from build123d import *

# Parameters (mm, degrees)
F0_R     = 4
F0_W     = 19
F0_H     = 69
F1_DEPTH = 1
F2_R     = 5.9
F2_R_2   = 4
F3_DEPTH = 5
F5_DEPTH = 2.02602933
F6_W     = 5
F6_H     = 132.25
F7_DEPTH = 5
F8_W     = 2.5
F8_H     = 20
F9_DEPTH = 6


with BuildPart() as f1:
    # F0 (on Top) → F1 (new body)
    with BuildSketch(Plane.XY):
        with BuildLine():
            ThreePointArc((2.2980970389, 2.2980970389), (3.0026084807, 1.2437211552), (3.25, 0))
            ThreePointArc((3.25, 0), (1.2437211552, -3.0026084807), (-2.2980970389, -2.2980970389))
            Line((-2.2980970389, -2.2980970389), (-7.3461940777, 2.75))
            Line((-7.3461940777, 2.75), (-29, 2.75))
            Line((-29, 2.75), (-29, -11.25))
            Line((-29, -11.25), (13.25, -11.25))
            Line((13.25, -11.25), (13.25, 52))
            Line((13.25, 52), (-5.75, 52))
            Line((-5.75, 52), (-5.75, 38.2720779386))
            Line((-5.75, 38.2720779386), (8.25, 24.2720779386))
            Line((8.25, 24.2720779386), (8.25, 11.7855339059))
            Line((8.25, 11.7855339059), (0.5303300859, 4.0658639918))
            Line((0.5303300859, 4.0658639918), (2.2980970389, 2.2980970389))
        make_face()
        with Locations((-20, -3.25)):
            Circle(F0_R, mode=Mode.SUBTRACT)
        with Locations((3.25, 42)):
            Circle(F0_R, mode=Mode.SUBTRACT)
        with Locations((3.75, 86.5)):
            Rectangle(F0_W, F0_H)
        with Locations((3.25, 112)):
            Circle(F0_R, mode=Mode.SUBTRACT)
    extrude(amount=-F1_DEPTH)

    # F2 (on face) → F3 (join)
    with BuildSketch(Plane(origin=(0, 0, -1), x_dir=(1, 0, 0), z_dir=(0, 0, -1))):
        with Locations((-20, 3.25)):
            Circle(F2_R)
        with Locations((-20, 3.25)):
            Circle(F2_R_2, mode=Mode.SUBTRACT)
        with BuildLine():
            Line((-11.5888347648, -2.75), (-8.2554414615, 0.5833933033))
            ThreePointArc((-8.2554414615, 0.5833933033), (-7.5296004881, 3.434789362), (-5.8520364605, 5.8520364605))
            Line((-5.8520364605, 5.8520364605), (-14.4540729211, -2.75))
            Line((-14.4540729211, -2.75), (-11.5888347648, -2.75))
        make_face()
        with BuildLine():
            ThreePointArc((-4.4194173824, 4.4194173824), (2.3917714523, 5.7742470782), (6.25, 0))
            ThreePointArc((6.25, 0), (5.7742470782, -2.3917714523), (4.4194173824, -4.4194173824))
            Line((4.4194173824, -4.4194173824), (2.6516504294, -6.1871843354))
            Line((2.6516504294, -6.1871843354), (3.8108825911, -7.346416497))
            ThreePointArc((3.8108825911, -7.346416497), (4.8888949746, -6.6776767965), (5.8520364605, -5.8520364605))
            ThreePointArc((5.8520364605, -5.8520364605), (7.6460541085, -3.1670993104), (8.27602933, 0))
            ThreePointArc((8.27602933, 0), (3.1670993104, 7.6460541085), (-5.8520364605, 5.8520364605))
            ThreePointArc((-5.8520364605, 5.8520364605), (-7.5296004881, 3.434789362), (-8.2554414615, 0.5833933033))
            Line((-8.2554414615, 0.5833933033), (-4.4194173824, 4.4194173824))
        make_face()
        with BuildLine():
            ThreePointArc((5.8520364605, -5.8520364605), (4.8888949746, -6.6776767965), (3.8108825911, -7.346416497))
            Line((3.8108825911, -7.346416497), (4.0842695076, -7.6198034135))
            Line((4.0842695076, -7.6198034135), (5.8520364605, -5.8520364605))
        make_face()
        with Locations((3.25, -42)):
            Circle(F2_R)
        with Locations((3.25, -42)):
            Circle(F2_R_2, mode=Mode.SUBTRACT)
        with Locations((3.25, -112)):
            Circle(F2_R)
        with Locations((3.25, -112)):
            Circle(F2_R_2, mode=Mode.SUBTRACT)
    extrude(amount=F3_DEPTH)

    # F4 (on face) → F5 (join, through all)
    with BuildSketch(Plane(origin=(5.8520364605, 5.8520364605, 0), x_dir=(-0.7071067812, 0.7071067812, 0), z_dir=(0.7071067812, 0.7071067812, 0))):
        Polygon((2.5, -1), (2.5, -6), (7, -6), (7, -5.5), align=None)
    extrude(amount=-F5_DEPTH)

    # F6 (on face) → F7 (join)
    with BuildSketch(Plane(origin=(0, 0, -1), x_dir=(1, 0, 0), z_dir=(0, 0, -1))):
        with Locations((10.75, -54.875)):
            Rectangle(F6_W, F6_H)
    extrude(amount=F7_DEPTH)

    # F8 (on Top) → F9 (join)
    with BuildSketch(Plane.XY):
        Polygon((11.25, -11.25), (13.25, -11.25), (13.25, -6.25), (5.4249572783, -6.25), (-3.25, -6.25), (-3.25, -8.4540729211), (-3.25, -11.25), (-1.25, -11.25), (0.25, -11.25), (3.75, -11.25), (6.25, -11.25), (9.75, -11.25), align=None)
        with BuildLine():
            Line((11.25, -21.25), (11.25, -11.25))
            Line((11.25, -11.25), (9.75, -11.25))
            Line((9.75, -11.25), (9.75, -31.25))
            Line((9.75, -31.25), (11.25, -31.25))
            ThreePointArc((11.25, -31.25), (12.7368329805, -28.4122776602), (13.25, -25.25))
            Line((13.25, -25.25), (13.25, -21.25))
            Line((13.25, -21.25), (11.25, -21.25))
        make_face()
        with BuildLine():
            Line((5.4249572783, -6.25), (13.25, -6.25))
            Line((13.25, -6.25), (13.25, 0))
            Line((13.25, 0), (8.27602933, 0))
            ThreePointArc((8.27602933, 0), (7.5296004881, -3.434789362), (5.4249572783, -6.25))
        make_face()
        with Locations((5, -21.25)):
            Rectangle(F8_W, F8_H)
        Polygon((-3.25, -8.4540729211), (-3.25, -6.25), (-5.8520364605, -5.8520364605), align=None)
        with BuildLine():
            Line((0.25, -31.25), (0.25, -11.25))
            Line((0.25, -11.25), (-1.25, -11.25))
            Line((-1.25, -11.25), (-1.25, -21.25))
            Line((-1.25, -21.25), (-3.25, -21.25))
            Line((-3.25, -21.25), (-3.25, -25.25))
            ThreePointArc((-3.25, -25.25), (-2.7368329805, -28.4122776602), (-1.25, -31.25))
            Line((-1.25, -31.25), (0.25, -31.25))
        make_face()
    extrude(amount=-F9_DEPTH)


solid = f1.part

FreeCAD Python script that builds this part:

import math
import FreeCAD as App
import Part
import Sketcher
Q = App.Units.Quantity

doc = App.newDocument("Part")
body = doc.addObject("PartDesign::Body", "Body")

# Sketch on XY plane
sketch1 = doc.addObject("Sketcher::SketchObject", "Sketch")
body.addObject(sketch1)
sketch1.AttachmentSupport = (doc.XY_Plane, [""])
sketch1.MapMode = "FlatFace"
sketch1.addGeometry([
    Part.ArcOfCircle(Part.Circle(App.Vector(0, 0, 0), App.Vector(0, 0, 1), 3.25), math.radians(0), math.radians(45)),  # 0
    Part.ArcOfCircle(Part.Circle(App.Vector(0, 0, 0), App.Vector(0, 0, 1), 3.25), math.radians(-135), math.radians(0)),  # 1
    Part.LineSegment(App.Vector(-2.298097, -2.298097, 0), App.Vector(-7.346194, 2.75, 0)),  # 2
    Part.LineSegment(App.Vector(-7.346194, 2.75, 0), App.Vector(-29, 2.75, 0)),  # 3
    Part.LineSegment(App.Vector(-29, 2.75, 0), App.Vector(-29, -11.25, 0)),  # 4
    Part.LineSegment(App.Vector(-29, -11.25, 0), App.Vector(13.25, -11.25, 0)),  # 5
    Part.LineSegment(App.Vector(13.25, -11.25, 0), App.Vector(13.25, 121, 0)),  # 6
    Part.LineSegment(App.Vector(13.25, 121, 0), App.Vector(-5.75, 121, 0)),  # 7
    Part.LineSegment(App.Vector(-5.75, 121, 0), App.Vector(-5.75, 38.272078, 0)),  # 8
    Part.LineSegment(App.Vector(-5.75, 38.272078, 0), App.Vector(8.25, 24.272078, 0)),  # 9
    Part.LineSegment(App.Vector(8.25, 24.272078, 0), App.Vector(8.25, 11.785534, 0)),  # 10
    Part.LineSegment(App.Vector(8.25, 11.785534, 0), App.Vector(0.53033, 4.065864, 0)),  # 11
    Part.LineSegment(App.Vector(0.53033, 4.065864, 0), App.Vector(2.298097, 2.298097, 0)),  # 12
    Part.Circle(App.Vector(-20, -3.25, 0), App.Vector(0, 0, 1), 4),  # 13
    Part.Circle(App.Vector(3.25, 42, 0), App.Vector(0, 0, 1), 4),  # 14
    Part.Circle(App.Vector(3.25, 112, 0), App.Vector(0, 0, 1), 4),  # 15
], False)
sketch1.addConstraint([
    Sketcher.Constraint("Tangent", 0, 1, 1, 2),
    Sketcher.Constraint("Tangent", 1, 1, 2, 1),
    Sketcher.Constraint("Coincident", 2, 2, 3, 1),
    Sketcher.Constraint("Coincident", 3, 2, 4, 1),
    Sketcher.Constraint("Coincident", 4, 2, 5, 1),
    Sketcher.Constraint("Coincident", 5, 2, 6, 1),
    Sketcher.Constraint("Coincident", 6, 2, 7, 1),
    Sketcher.Constraint("Coincident", 7, 2, 8, 1),
    Sketcher.Constraint("Coincident", 8, 2, 9, 1),
    Sketcher.Constraint("Coincident", 9, 2, 10, 1),
    Sketcher.Constraint("Coincident", 10, 2, 11, 1),
    Sketcher.Constraint("Coincident", 11, 2, 12, 1),
    Sketcher.Constraint("Tangent", 12, 2, 0, 2),
    Sketcher.Constraint("Horizontal", 3),
    Sketcher.Constraint("Vertical", 4),
    Sketcher.Constraint("Horizontal", 5),
    Sketcher.Constraint("Vertical", 6),
    Sketcher.Constraint("Horizontal", 7),
    Sketcher.Constraint("Vertical", 8),
    Sketcher.Constraint("Vertical", 10),
    Sketcher.Constraint("Coincident", 0, 3, -1, 1),
    Sketcher.Constraint("Equal", 0, 1),
    Sketcher.Constraint("Equal", 13, 14),
    Sketcher.Constraint("Equal", 14, 15),
    Sketcher.Constraint("PointOnObject", 0, 1, -1),
    Sketcher.Constraint("Parallel", 2, 9),
    Sketcher.Constraint("Perpendicular", 9, 11),
    Sketcher.Constraint("Perpendicular", 11, 12),
    Sketcher.Constraint("Vertical", 14, 3, 15, 3),
    Sketcher.Constraint("Vertical", 15, 3, 0, 1),
    Sketcher.Constraint("Diameter", 13, Q("8 mm")),
    Sketcher.Constraint("DistanceX", 7, 2, 7, 1, Q("19 mm")),
    Sketcher.Constraint("DistanceY", 4, 2, 4, 1, Q("14 mm")),
    Sketcher.Constraint("Angle", 2, Q("135 deg")),
    Sketcher.Constraint("Radius", 0, Q("3.25 mm")),
    Sketcher.Constraint("DistanceX", 13, 3, -1, 1, Q("20 mm")),
    Sketcher.Constraint("DistanceY", -1, 1, 14, 3, Q("42 mm")),
    Sketcher.Constraint("DistanceY", -1, 1, 15, 3, Q("112 mm")),
    Sketcher.Constraint("DistanceX", 3, 2, -1, 1, Q("29 mm")),
    Sketcher.Constraint("DistanceY", -1, 1, 6, 2, Q("121 mm")),
    Sketcher.Constraint("DistanceY", 13, 3, 2, 2, Q("6 mm")),
    Sketcher.Constraint("DistanceX", 0, 1, 5, 2, Q("10 mm")),
    Sketcher.Constraint("DistanceX", 14, 3, 9, 2, Q("5 mm")),
    Sketcher.Constraint("Distance", 12, Q("2.5 mm")),
    Sketcher.Constraint("DistanceY", 6, 1, 6, 2, Q("132.25 mm")),
    Sketcher.Constraint("DistanceY", 8, 2, 8, 1, Q("82.727922 mm")),
])
pad1 = doc.addObject("PartDesign::Pad", "Pad")
body.addObject(pad1)
pad1.Profile = sketch1
pad1.Length = 1
pad1.Reversed = True

# Sketch on XY plane
sketch2 = doc.addObject("Sketcher::SketchObject", "Sketch001")
body.addObject(sketch2)
sketch2.AttachmentSupport = (doc.XY_Plane, [""])
sketch2.MapMode = "FlatFace"
sketch2.AttachmentOffset = App.Placement(App.Vector(0, 0, -1), App.Rotation())
sketch2.addGeometry([
    Part.Circle(App.Vector(-20, -3.25, 0), App.Vector(0, 0, 1), 5.9),  # 0
    Part.Circle(App.Vector(-20, -3.25, 0), App.Vector(0, 0, 1), 4),  # 1
    Part.LineSegment(App.Vector(-11.588835, 2.75, 0), App.Vector(-4.419417, -4.419417, 0)),  # 2
    Part.ArcOfCircle(Part.Circle(App.Vector(0, 0, 0), App.Vector(0, 0, 1), 6.25), math.radians(-135), math.radians(0)),  # 3
    Part.ArcOfCircle(Part.Circle(App.Vector(0, 0, 0), App.Vector(0, 0, 1), 6.25), math.radians(0), math.radians(45)),  # 4
    Part.LineSegment(App.Vector(4.419417, 4.419417, 0), App.Vector(2.65165, 6.187184, 0)),  # 5
    Part.LineSegment(App.Vector(2.65165, 6.187184, 0), App.Vector(3.810883, 7.346416, 0)),  # 6
    Part.LineSegment(App.Vector(3.810883, 7.346416, 0), App.Vector(4.08427, 7.619803, 0)),  # 7
    Part.LineSegment(App.Vector(4.08427, 7.619803, 0), App.Vector(5.852036, 5.852036, 0)),  # 8
    Part.ArcOfCircle(Part.Circle(App.Vector(0, 0, 0), App.Vector(0, 0, 1), 8.276029), math.radians(0), math.radians(45)),  # 9
    Part.ArcOfCircle(Part.Circle(App.Vector(0, 0, 0), App.Vector(0, 0, 1), 8.276029), math.radians(-135), math.radians(0)),  # 10
    Part.LineSegment(App.Vector(-5.852036, -5.852036, 0), App.Vector(-14.454073, 2.75, 0)),  # 11
    Part.LineSegment(App.Vector(-14.454073, 2.75, 0), App.Vector(-11.588835, 2.75, 0)),  # 12
    Part.Circle(App.Vector(3.25, 42, 0), App.Vector(0, 0, 1), 5.9),  # 13
    Part.Circle(App.Vector(3.25, 42, 0), App.Vector(0, 0, 1), 4),  # 14
    Part.Circle(App.Vector(3.25, 112, 0), App.Vector(0, 0, 1), 5.9),  # 15
    Part.Circle(App.Vector(3.25, 112, 0), App.Vector(0, 0, 1), 4),  # 16
], False)
sketch2.addConstraint([
    Sketcher.Constraint("Tangent", 2, 2, 3, 1),
    Sketcher.Constraint("Tangent", 3, 2, 4, 1),
    Sketcher.Constraint("Tangent", 4, 2, 5, 1),
    Sketcher.Constraint("Coincident", 5, 2, 6, 1),
    Sketcher.Constraint("Coincident", 6, 2, 7, 1),
    Sketcher.Constraint("Coincident", 7, 2, 8, 1),
    Sketcher.Constraint("Tangent", 8, 2, 9, 2),
    Sketcher.Constraint("Tangent", 9, 1, 10, 2),
    Sketcher.Constraint("Tangent", 10, 1, 11, 1),
    Sketcher.Constraint("Coincident", 11, 2, 12, 1),
    Sketcher.Constraint("Coincident", 12, 2, 2, 1),
    Sketcher.Constraint("Horizontal", 12),
    Sketcher.Constraint("Coincident", 3, 3, -1, 1),
    Sketcher.Constraint("Coincident", 9, 3, -1, 1),
    Sketcher.Constraint("Coincident", 1, 3, 0, 3),
    Sketcher.Constraint("Coincident", 14, 3, 13, 3),
    Sketcher.Constraint("Coincident", 16, 3, 15, 3),
    Sketcher.Constraint("Equal", 3, 4),
    Sketcher.Constraint("Equal", 9, 10),
    Sketcher.Constraint("Equal", 0, 13),
    Sketcher.Constraint("Equal", 1, 14),
    Sketcher.Constraint("Equal", 13, 15),
    Sketcher.Constraint("Equal", 14, 16),
    Sketcher.Constraint("PointOnObject", 3, 2, -1),
    Sketcher.Constraint("PointOnObject", 9, 1, -1),
    Sketcher.Constraint("Parallel", 2, 5),
    Sketcher.Constraint("Perpendicular", 5, 6),
    Sketcher.Constraint("Parallel", 6, 7),
    Sketcher.Constraint("Perpendicular", 7, 8),
    Sketcher.Constraint("Parallel", 8, 11),
    Sketcher.Constraint("Vertical", 14, 3, 15, 3),
    Sketcher.Constraint("Diameter", 1, Q("8 mm")),
    Sketcher.Constraint("Diameter", 0, Q("11.8 mm")),
    Sketcher.Constraint("Angle", 2, Q("-45 deg")),
    Sketcher.Constraint("Radius", 3, Q("6.25 mm")),
    Sketcher.Constraint("DistanceX", 0, 3, -1, 1, Q("20 mm")),
    Sketcher.Constraint("DistanceY", -1, 1, 13, 3, Q("42 mm")),
    Sketcher.Constraint("DistanceY", -1, 1, 15, 3, Q("112 mm")),
    Sketcher.Constraint("DistanceY", 0, 3, 11, 2, Q("6 mm")),
    Sketcher.Constraint("Distance", 5, Q("2.5 mm")),
    Sketcher.Constraint("DistanceY", 0, 3, -1, 1, Q("3.25 mm")),
    Sketcher.Constraint("DistanceX", -1, 1, 13, 3, Q("3.25 mm")),
    Sketcher.Constraint("Radius", 9, Q("8.276029 mm")),
    Sketcher.Constraint("DistanceY", 4, 2, 6, 2, Q("2.926999 mm")),
])
pad2 = doc.addObject("PartDesign::Pad", "Pad001")
body.addObject(pad2)
pad2.Profile = sketch2
pad2.Length = 5
pad2.Reversed = True

# Sketch on an angled plane
sketch3 = doc.addObject("Sketcher::SketchObject", "Sketch002")
body.addObject(sketch3)
sketch3.Placement = App.Placement(App.Vector(5.852036, 5.852036, 0), App.Rotation(App.Vector(-0.707106781, 0.707106781, 0), App.Vector(0, 0, 0.999999999), App.Vector(0.707106781, 0.707106781, 0), "ZXY"))
sketch3.addGeometry([
    Part.LineSegment(App.Vector(2.5, -1, 0), App.Vector(2.5, -6, 0)),
    Part.LineSegment(App.Vector(2.5, -6, 0), App.Vector(7, -6, 0)),
    Part.LineSegment(App.Vector(7, -6, 0), App.Vector(7, -5.5, 0)),
    Part.LineSegment(App.Vector(7, -5.5, 0), App.Vector(2.5, -1, 0)),
], False)
sketch3.addConstraint([
    Sketcher.Constraint("Coincident", 0, 2, 1, 1),
    Sketcher.Constraint("Coincident", 1, 2, 2, 1),
    Sketcher.Constraint("Coincident", 2, 2, 3, 1),
    Sketcher.Constraint("Coincident", 3, 2, 0, 1),
    Sketcher.Constraint("Vertical", 0),
    Sketcher.Constraint("Horizontal", 1),
    Sketcher.Constraint("Vertical", 2),
    Sketcher.Constraint("DistanceY", 0, 2, 0, 1, Q("5 mm")),
    Sketcher.Constraint("Angle", 3, Q("135 deg")),
    Sketcher.Constraint("DistanceX", 1, 1, 1, 2, Q("4.5 mm")),
    Sketcher.Constraint("DistanceY", 0, 2, -1, 1, Q("6 mm")),
    Sketcher.Constraint("DistanceX", -1, 1, 1, 2, Q("7 mm")),
])
pad3 = doc.addObject("PartDesign::Pad", "Pad002")
body.addObject(pad3)
pad3.Profile = sketch3
pad3.Length = 2.026029
pad3.Reversed = True

# Sketch on XY plane
sketch4 = doc.addObject("Sketcher::SketchObject", "Sketch003")
body.addObject(sketch4)
sketch4.AttachmentSupport = (doc.XY_Plane, [""])
sketch4.MapMode = "FlatFace"
sketch4.AttachmentOffset = App.Placement(App.Vector(0, 0, -1), App.Rotation())
sketch4.addGeometry([
    Part.LineSegment(App.Vector(8.25, -11.25, 0), App.Vector(8.25, 121, 0)),
    Part.LineSegment(App.Vector(8.25, 121, 0), App.Vector(13.25, 121, 0)),
    Part.LineSegment(App.Vector(13.25, 121, 0), App.Vector(13.25, -11.25, 0)),
    Part.LineSegment(App.Vector(13.25, -11.25, 0), App.Vector(8.25, -11.25, 0)),
], False)
sketch4.addConstraint([
    Sketcher.Constraint("Coincident", 0, 2, 1, 1),
    Sketcher.Constraint("Coincident", 1, 2, 2, 1),
    Sketcher.Constraint("Coincident", 2, 2, 3, 1),
    Sketcher.Constraint("Coincident", 3, 2, 0, 1),
    Sketcher.Constraint("Vertical", 0),
    Sketcher.Constraint("Horizontal", 1),
    Sketcher.Constraint("Vertical", 2),
    Sketcher.Constraint("Horizontal", 3),
    Sketcher.Constraint("DistanceX", 1, 1, 1, 2, Q("5 mm")),
    Sketcher.Constraint("DistanceY", -1, 1, 0, 2, Q("121 mm")),
    Sketcher.Constraint("DistanceY", 0, 1, 0, 2, Q("132.25 mm")),
    Sketcher.Constraint("DistanceX", -1, 1, 0, 2, Q("8.25 mm")),
])
pad4 = doc.addObject("PartDesign::Pad", "Pad003")
body.addObject(pad4)
pad4.Profile = sketch4
pad4.Length = 5
pad4.Reversed = True

# Sketch on XY plane
sketch5 = doc.addObject("Sketcher::SketchObject", "Sketch004")
body.addObject(sketch5)
sketch5.AttachmentSupport = (doc.XY_Plane, [""])
sketch5.MapMode = "FlatFace"
sketch5.addGeometry([
    Part.LineSegment(App.Vector(13.25, -11.25, 0), App.Vector(13.25, 0, 0)),  # 0
    Part.LineSegment(App.Vector(13.25, 0, 0), App.Vector(8.276029, 0, 0)),  # 1
    Part.ArcOfCircle(Part.Circle(App.Vector(0, 0, 0), App.Vector(0, 0, 1), 8.276029), math.radians(-49.042243), math.radians(0)),  # 2
    Part.LineSegment(App.Vector(5.424957, -6.25, 0), App.Vector(-3.25, -6.25, 0)),  # 3
    Part.LineSegment(App.Vector(-3.25, -6.25, 0), App.Vector(-5.852036, -5.852036, 0)),  # 4
    Part.LineSegment(App.Vector(-5.852036, -5.852036, 0), App.Vector(-3.25, -8.454073, 0)),  # 5
    Part.LineSegment(App.Vector(-3.25, -8.454073, 0), App.Vector(-3.25, -11.25, 0)),  # 6
    Part.LineSegment(App.Vector(-3.25, -11.25, 0), App.Vector(-1.25, -11.25, 0)),  # 7
    Part.LineSegment(App.Vector(-1.25, -11.25, 0), App.Vector(-1.25, -21.25, 0)),  # 8
    Part.LineSegment(App.Vector(-1.25, -21.25, 0), App.Vector(-3.25, -21.25, 0)),  # 9
    Part.LineSegment(App.Vector(-3.25, -21.25, 0), App.Vector(-3.25, -25.25, 0)),  # 10
    Part.ArcOfCircle(Part.Circle(App.Vector(6.75, -25.25, 0), App.Vector(0, 0, 1), 10), math.radians(180), math.radians(216.869898)),  # 11
    Part.LineSegment(App.Vector(-1.25, -31.25, 0), App.Vector(0.25, -31.25, 0)),  # 12
    Part.LineSegment(App.Vector(0.25, -31.25, 0), App.Vector(0.25, -11.25, 0)),  # 13
    Part.LineSegment(App.Vector(0.25, -11.25, 0), App.Vector(3.75, -11.25, 0)),  # 14
    Part.LineSegment(App.Vector(3.75, -11.25, 0), App.Vector(3.75, -31.25, 0)),  # 15
    Part.LineSegment(App.Vector(3.75, -31.25, 0), App.Vector(6.25, -31.25, 0)),  # 16
    Part.LineSegment(App.Vector(6.25, -31.25, 0), App.Vector(6.25, -11.25, 0)),  # 17
    Part.LineSegment(App.Vector(6.25, -11.25, 0), App.Vector(9.75, -11.25, 0)),  # 18
    Part.LineSegment(App.Vector(9.75, -11.25, 0), App.Vector(9.75, -31.25, 0)),  # 19
    Part.LineSegment(App.Vector(9.75, -31.25, 0), App.Vector(11.25, -31.25, 0)),  # 20
    Part.ArcOfCircle(Part.Circle(App.Vector(3.25, -25.25, 0), App.Vector(0, 0, 1), 10), math.radians(-36.869898), math.radians(0)),  # 21
    Part.LineSegment(App.Vector(13.25, -25.25, 0), App.Vector(13.25, -21.25, 0)),  # 22
    Part.LineSegment(App.Vector(13.25, -21.25, 0), App.Vector(11.25, -21.25, 0)),  # 23
    Part.LineSegment(App.Vector(11.25, -21.25, 0), App.Vector(11.25, -11.25, 0)),  # 24
    Part.LineSegment(App.Vector(11.25, -11.25, 0), App.Vector(13.25, -11.25, 0)),  # 25
], False)
sketch5.addConstraint([
    Sketcher.Constraint("Coincident", 0, 2, 1, 1),
    Sketcher.Constraint("Coincident", 1, 2, 2, 2),
    Sketcher.Constraint("Coincident", 2, 1, 3, 1),
    Sketcher.Constraint("Coincident", 3, 2, 4, 1),
    Sketcher.Constraint("Coincident", 4, 2, 5, 1),
    Sketcher.Constraint("Coincident", 5, 2, 6, 1),
    Sketcher.Constraint("Coincident", 6, 2, 7, 1),
    Sketcher.Constraint("Coincident", 7, 2, 8, 1),
    Sketcher.Constraint("Coincident", 8, 2, 9, 1),
    Sketcher.Constraint("Coincident", 9, 2, 10, 1),
    Sketcher.Constraint("Tangent", 10, 2, 11, 1),
    Sketcher.Constraint("Coincident", 11, 2, 12, 1),
    Sketcher.Constraint("Coincident", 12, 2, 13, 1),
    Sketcher.Constraint("Coincident", 13, 2, 14, 1),
    Sketcher.Constraint("Coincident", 14, 2, 15, 1),
    Sketcher.Constraint("Coincident", 15, 2, 16, 1),
    Sketcher.Constraint("Coincident", 16, 2, 17, 1),
    Sketcher.Constraint("Coincident", 17, 2, 18, 1),
    Sketcher.Constraint("Coincident", 18, 2, 19, 1),
    Sketcher.Constraint("Coincident", 19, 2, 20, 1),
    Sketcher.Constraint("Coincident", 20, 2, 21, 1),
    Sketcher.Constraint("Tangent", 21, 2, 22, 1),
    Sketcher.Constraint("Coincident", 22, 2, 23, 1),
    Sketcher.Constraint("Coincident", 23, 2, 24, 1),
    Sketcher.Constraint("Coincident", 24, 2, 25, 1),
    Sketcher.Constraint("Coincident", 25, 2, 0, 1),
    Sketcher.Constraint("Vertical", 0),
    Sketcher.Constraint("Horizontal", 1),
    Sketcher.Constraint("Horizontal", 3),
    Sketcher.Constraint("Vertical", 6),
    Sketcher.Constraint("Horizontal", 7),
    Sketcher.Constraint("Vertical", 8),
    Sketcher.Constraint("Horizontal", 9),
    Sketcher.Constraint("Vertical", 10),
    Sketcher.Constraint("Horizontal", 12),
    Sketcher.Constraint("Vertical", 13),
    Sketcher.Constraint("Horizontal", 14),
    Sketcher.Constraint("Vertical", 15),
    Sketcher.Constraint("Horizontal", 16),
    Sketcher.Constraint("Vertical", 17),
    Sketcher.Constraint("Horizontal", 18),
    Sketcher.Constraint("Vertical", 19),
    Sketcher.Constraint("Horizontal", 20),
    Sketcher.Constraint("Vertical", 22),
    Sketcher.Constraint("Horizontal", 23),
    Sketcher.Constraint("Vertical", 24),
    Sketcher.Constraint("Horizontal", 25),
    Sketcher.Constraint("Coincident", 2, 3, -1, 1),
    Sketcher.Constraint("Equal", 11, 21),
    Sketcher.Constraint("PointOnObject", 0, 2, -1),
    Sketcher.Constraint("Horizontal", 11, 3, 21, 3),
    Sketcher.Constraint("Horizontal", 7, 2, 13, 2),
    Sketcher.Constraint("Horizontal", 12, 2, 15, 2),
    Sketcher.Constraint("Horizontal", 14, 2, 17, 2),
    Sketcher.Constraint("Horizontal", 16, 2, 19, 2),
    Sketcher.Constraint("Horizontal", 9, 2, 22, 2),
    Sketcher.Constraint("Horizontal", 18, 2, 24, 2),
    Sketcher.Constraint("Vertical", 3, 2, 5, 2),
    Sketcher.Constraint("Vertical", 6, 2, 9, 2),
    Sketcher.Constraint("Vertical", 8, 2, 11, 2),
    Sketcher.Constraint("Vertical", 0, 2, 21, 2),
    Sketcher.Constraint("Vertical", 20, 2, 23, 2),
    Sketcher.Constraint("Equal", 14, 18),
    Sketcher.Constraint("Equal", 12, 20),
    Sketcher.Constraint("Radius", 11, Q("10 mm")),
    Sketcher.Constraint("DistanceX", 7, 1, 7, 2, Q("2 mm")),
    Sketcher.Constraint("DistanceY", 8, 2, 8, 1, Q("10 mm")),
    Sketcher.Constraint("DistanceY", 10, 2, 10, 1, Q("4 mm")),
    Sketcher.Constraint("Angle", 5, Q("-45 deg")),
    Sketcher.Constraint("DistanceX", 12, 1, 12, 2, Q("1.5 mm")),
    Sketcher.Constraint("DistanceX", 14, 1, 14, 2, Q("3.5 mm")),
    Sketcher.Constraint("DistanceX", 16, 1, 16, 2, Q("2.5 mm")),
    Sketcher.Constraint("DistanceY", 11, 3, 2, 1, Q("19 mm")),
    Sketcher.Constraint("DistanceY", 0, 1, 0, 2, Q("11.25 mm")),
    Sketcher.Constraint("DistanceX", -1, 1, 11, 3, Q("6.75 mm")),
    Sketcher.Constraint("Radius", 2, Q("8.276029 mm")),
    Sketcher.Constraint("DistanceY", 6, 2, 6, 1, Q("2.795927 mm")),
    Sketcher.Constraint("Distance", 4, Q("2.632293 mm")),
])
pad5 = doc.addObject("PartDesign::Pad", "Pad004")
body.addObject(pad5)
pad5.Profile = sketch5
pad5.Length = 6
pad5.Reversed = True

doc.recompute()
